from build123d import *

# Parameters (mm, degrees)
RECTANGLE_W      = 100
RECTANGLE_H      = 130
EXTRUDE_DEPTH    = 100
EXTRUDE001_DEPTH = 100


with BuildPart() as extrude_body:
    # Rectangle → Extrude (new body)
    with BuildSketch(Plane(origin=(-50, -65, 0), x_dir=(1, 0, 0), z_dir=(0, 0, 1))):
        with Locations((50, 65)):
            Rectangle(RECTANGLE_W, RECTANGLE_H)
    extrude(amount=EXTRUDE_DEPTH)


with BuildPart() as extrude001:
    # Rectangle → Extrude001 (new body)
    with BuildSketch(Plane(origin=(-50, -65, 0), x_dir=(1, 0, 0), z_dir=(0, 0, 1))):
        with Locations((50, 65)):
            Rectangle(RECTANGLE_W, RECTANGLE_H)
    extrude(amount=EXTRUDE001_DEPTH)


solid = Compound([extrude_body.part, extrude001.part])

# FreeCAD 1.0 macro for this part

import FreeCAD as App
import Part
import Sketcher
Q = App.Units.Quantity

doc = App.newDocument("Part")
params = doc.addObject("Spreadsheet::Sheet", "Params")
for row, (alias, value) in enumerate([
    ("sketch1_width", "100 mm"),
    ("sketch1_height", "130 mm"),
    ("pad1_length", "100 mm"),
    ("sketch2_width", "100 mm"),
    ("sketch2_height", "130 mm"),
    ("pad2_length", "100 mm"),
], start=1):
    params.set(f"A{row}", alias)
    params.set(f"B{row}", "=" + value)
    params.setAlias(f"B{row}", alias)

body = doc.addObject("PartDesign::Body", "Body")

# Sketch on XY plane
sketch1 = body.newObject("Sketcher::SketchObject", "Sketch")
sketch1.AttachmentSupport = (doc.getObject("XY_Plane"), [""])
sketch1.MapMode = "FlatFace"
sketch1.addGeometry([
    Part.LineSegment(App.Vector(-50, 65, 0), App.Vector(-50, -65, 0)),
    Part.LineSegment(App.Vector(-50, -65, 0), App.Vector(50, -65, 0)),
    Part.LineSegment(App.Vector(50, -65, 0), App.Vector(50, 65, 0)),
    Part.LineSegment(App.Vector(50, 65, 0), App.Vector(-50, 65, 0)),
], False)
sketch1.addConstraint([
    Sketcher.Constraint("Coincident", 0, 2, 1, 1),
    Sketcher.Constraint("Coincident", 1, 2, 2, 1),
    Sketcher.Constraint("Coincident", 2, 2, 3, 1),
    Sketcher.Constraint("Coincident", 3, 2, 0, 1),
    Sketcher.Constraint("Vertical", 0),
    Sketcher.Constraint("Horizontal", 1),
    Sketcher.Constraint("Vertical", 2),
    Sketcher.Constraint("Horizontal", 3),
    Sketcher.Constraint("Symmetric", 0, 2, 2, 2, -1, 1),
    Sketcher.Constraint("DistanceX", 1, 1, 1, 2, Q("100 mm")),
    Sketcher.Constraint("DistanceY", 0, 2, 0, 1, Q("130 mm")),
])
sketch1.setExpression("Constraints[9]", "Params.sketch1_width")
sketch1.setExpression("Constraints[10]", "Params.sketch1_height")
pad1 = body.newObject("PartDesign::Pad", "Pad")
pad1.Profile = sketch1
pad1.setExpression("Length", "Params.pad1_length")
body2 = doc.addObject("PartDesign::Body", "Body001")

# Sketch on XY plane
sketch2 = body2.newObject("Sketcher::SketchObject", "Sketch001")
sketch2.AttachmentSupport = (doc.getObject("XY_Plane001"), [""])
sketch2.MapMode = "FlatFace"
sketch2.addGeometry([
    Part.LineSegment(App.Vector(-50, 65, 0), App.Vector(-50, -65, 0)),
    Part.LineSegment(App.Vector(-50, -65, 0), App.Vector(50, -65, 0)),
    Part.LineSegment(App.Vector(50, -65, 0), App.Vector(50, 65, 0)),
    Part.LineSegment(App.Vector(50, 65, 0), App.Vector(-50, 65, 0)),
], False)
sketch2.addConstraint([
    Sketcher.Constraint("Coincident", 0, 2, 1, 1),
    Sketcher.Constraint("Coincident", 1, 2, 2, 1),
    Sketcher.Constraint("Coincident", 2, 2, 3, 1),
    Sketcher.Constraint("Coincident", 3, 2, 0, 1),
    Sketcher.Constraint("Vertical", 0),
    Sketcher.Constraint("Horizontal", 1),
    Sketcher.Constraint("Vertical", 2),
    Sketcher.Constraint("Horizontal", 3),
    Sketcher.Constraint("Symmetric", 0, 2, 2, 2, -1, 1),
    Sketcher.Constraint("DistanceX", 1, 1, 1, 2, Q("100 mm")),
    Sketcher.Constraint("DistanceY", 0, 2, 0, 1, Q("130 mm")),
])
sketch2.setExpression("Constraints[9]", "Params.sketch2_width")
sketch2.setExpression("Constraints[10]", "Params.sketch2_height")
pad2 = body2.newObject("PartDesign::Pad", "Pad001")
pad2.Profile = sketch2
pad2.setExpression("Length", "Params.pad2_length")

doc.recompute()
